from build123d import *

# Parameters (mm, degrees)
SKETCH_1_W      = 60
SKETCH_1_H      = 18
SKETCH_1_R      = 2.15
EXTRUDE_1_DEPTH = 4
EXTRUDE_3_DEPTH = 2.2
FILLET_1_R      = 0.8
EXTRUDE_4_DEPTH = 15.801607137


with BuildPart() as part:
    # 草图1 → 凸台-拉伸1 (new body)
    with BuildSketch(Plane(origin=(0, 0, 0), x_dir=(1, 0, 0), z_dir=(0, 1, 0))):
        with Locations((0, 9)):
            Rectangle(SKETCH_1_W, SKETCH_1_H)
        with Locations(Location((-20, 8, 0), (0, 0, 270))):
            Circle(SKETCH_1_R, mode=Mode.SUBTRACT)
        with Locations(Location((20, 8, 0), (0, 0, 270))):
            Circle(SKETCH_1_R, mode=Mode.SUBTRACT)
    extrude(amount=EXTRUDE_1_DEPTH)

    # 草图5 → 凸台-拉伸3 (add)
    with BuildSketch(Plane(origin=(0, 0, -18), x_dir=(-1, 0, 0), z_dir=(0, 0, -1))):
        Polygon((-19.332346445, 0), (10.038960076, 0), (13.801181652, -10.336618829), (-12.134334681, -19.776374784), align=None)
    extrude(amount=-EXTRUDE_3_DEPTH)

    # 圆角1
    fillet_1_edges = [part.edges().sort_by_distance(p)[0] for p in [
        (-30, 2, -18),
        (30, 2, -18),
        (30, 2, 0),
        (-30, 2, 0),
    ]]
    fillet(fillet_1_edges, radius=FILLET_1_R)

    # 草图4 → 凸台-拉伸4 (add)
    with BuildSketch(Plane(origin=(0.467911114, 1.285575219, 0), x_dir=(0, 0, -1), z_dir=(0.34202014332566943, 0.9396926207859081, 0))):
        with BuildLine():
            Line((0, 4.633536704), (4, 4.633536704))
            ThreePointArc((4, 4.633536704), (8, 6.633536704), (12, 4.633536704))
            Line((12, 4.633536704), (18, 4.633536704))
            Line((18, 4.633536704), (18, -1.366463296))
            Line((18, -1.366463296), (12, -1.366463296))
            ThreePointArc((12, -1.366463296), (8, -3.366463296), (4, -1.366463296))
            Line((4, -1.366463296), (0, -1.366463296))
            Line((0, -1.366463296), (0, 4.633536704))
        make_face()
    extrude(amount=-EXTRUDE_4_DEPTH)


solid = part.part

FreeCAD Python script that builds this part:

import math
import FreeCAD as App
import Part
import Sketcher
Q = App.Units.Quantity


def edges_at(feature, points):
    """Names of the edges that pass closest to the given points."""
    edges = feature.Shape.Edges
    near = lambda p: min(range(len(edges)), key=lambda i: edges[i].distToShape(Part.Vertex(*p))[0])
    return sorted({f"Edge{near(p) + 1}" for p in points})


def add_polygon(sketch, points):
    """Adds a closed chain of lines whose ends are joined by coincident constraints."""
    first, n = sketch.GeometryCount, len(points)
    for a, b in zip(points, points[1:] + points[:1]):
        sketch.addGeometry(Part.LineSegment(App.Vector(*a, 0), App.Vector(*b, 0)), False)
    for i in range(n):
        sketch.addConstraint(Sketcher.Constraint("Coincident", first + i, 2, first + (i + 1) % n, 1))

doc = App.newDocument("Part")
body = doc.addObject("PartDesign::Body", "Body")

# Sketch on XZ plane
sketch1 = body.newObject("Sketcher::SketchObject", "Sketch")
sketch1.AttachmentSupport = (doc.getObject("XZ_Plane"), [""])
sketch1.MapMode = "FlatFace"
add_polygon(sketch1, [(-30, -18), (-30, 0), (30, 0), (30, -18)])  # lines 0-3
sketch1.addGeometry(Part.Circle(App.Vector(-20, -8, 0), App.Vector(0, 0, 1), 2.1), False)  # 4
sketch1.addGeometry(Part.Circle(App.Vector(20, -8, 0), App.Vector(0, 0, 1), 2.1), False)  # 5
sketch1.addConstraint(Sketcher.Constraint("Vertical", 0))
sketch1.addConstraint(Sketcher.Constraint("Horizontal", 1))
sketch1.addConstraint(Sketcher.Constraint("Vertical", 2))
sketch1.addConstraint(Sketcher.Constraint("Horizontal", 3))
sketch1.addConstraint(Sketcher.Constraint("Equal", 4, 5))
sketch1.addConstraint(Sketcher.Constraint("Symmetric", 0, 2, 1, 2, -1, 1))
sketch1.addConstraint(Sketcher.Constraint("Symmetric", 4, 3, 5, 3, -2))
sketch1.addConstraint(Sketcher.Constraint("Diameter", 4, 4.3))
sketch1.addConstraint(Sketcher.Constraint("DistanceX", 1, 1, 1, 2, 60.0))
sketch1.addConstraint(Sketcher.Constraint("DistanceY", 0, 1, 0, 2, 18.0))
sketch1.addConstraint(Sketcher.Constraint("DistanceX", 4, 3, -1, 1, 20.0))
sketch1.addConstraint(Sketcher.Constraint("DistanceY", 4, 3, -1, 1, 8.0))
pad1 = body.newObject("PartDesign::Pad", "Pad")
pad1.Profile = sketch1
pad1.Length = 4
pad1.Reversed = True

# Sketch on XY plane
sketch2 = body.newObject("Sketcher::SketchObject", "Sketch001")
sketch2.AttachmentSupport = (doc.getObject("XY_Plane"), [""])
sketch2.MapMode = "FlatFace"
sketch2.AttachmentOffset = App.Placement(App.Vector(0, 0, -18), App.Rotation())
add_polygon(sketch2, [(-10, 0), (19, 0), (12, -20), (-14, -10)])  # lines 0-3
sketch2.addConstraint(Sketcher.Constraint("Horizontal", 0))
sketch2.addConstraint(Sketcher.Constraint("PointOnObject", 0, 2, -1))
sketch2.addConstraint(Sketcher.Constraint("Perpendicular", 1, 2))
sketch2.addConstraint(Sketcher.Constraint("Perpendicular", 2, 3))
sketch2.addConstraint(Sketcher.Constraint("Angle", 1, Q("-110 deg")))
sketch2.addConstraint(Sketcher.Constraint("Distance", 3, 11.0))
sketch2.addConstraint(Sketcher.Constraint("Distance", 2, 27.6))
sketch2.addConstraint(Sketcher.Constraint("DistanceX", 2, 2, -1, 1, 13.801182))
pad2 = body.newObject("PartDesign::Pad", "Pad001")
pad2.Profile = sketch2
pad2.Length = 2.2
doc.recompute()

fillet = body.newObject("PartDesign::Fillet", "Fillet")
fillet.Base = (pad2, edges_at(pad2, [
    (-30, 2, -18),
    (30, 2, -18),
    (30, 2, 0),
    (-30, 2, 0),
]))
fillet.Radius = 0.8

# Sketch on an angled plane
sketch3 = body.newObject("Sketcher::SketchObject", "Sketch002")
sketch3.Placement = App.Placement(App.Vector(0.467911, 1.285575, 0), App.Rotation(App.Vector(0, 0, -1), App.Vector(-0.939692621, 0.342020143, 0), App.Vector(0.342020143, 0.939692621, 0), "ZXY"))
sketch3.addGeometry(Part.LineSegment(App.Vector(4, 4.6, 0), App.Vector(0, 4.6, 0)), False)
sketch3.addGeometry(Part.LineSegment(App.Vector(0, 4.6, 0), App.Vector(0, -1.4, 0)), False)
sketch3.addGeometry(Part.LineSegment(App.Vector(0, -1.4, 0), App.Vector(4, -1.4, 0)), False)
sketch3.addGeometry(Part.ArcOfCircle(Part.Circle(App.Vector(8, 1.6, 0), App.Vector(0, 0, 1), 5), math.radians(-143), math.radians(-37)), False)
sketch3.addGeometry(Part.LineSegment(App.Vector(12, -1.4, 0), App.Vector(18, -1.4, 0)), False)
sketch3.addGeometry(Part.LineSegment(App.Vector(18, -1.4, 0), App.Vector(18, 4.6, 0)), False)
sketch3.addGeometry(Part.LineSegment(App.Vector(18, 4.6, 0), App.Vector(12, 4.6, 0)), False)
sketch3.addGeometry(Part.ArcOfCircle(Part.Circle(App.Vector(8, 1.6, 0), App.Vector(0, 0, 1), 5), math.radians(37), math.radians(143)), False)
sketch3.addConstraint(Sketcher.Constraint("Coincident", 0, 2, 1, 1))
sketch3.addConstraint(Sketcher.Constraint("Coincident", 1, 2, 2, 1))
sketch3.addConstraint(Sketcher.Constraint("Coincident", 2, 2, 3, 1))
sketch3.addConstraint(Sketcher.Constraint("Coincident", 3, 2, 4, 1))
sketch3.addConstraint(Sketcher.Constraint("Coincident", 4, 2, 5, 1))
sketch3.addConstraint(Sketcher.Constraint("Coincident", 5, 2, 6, 1))
sketch3.addConstraint(Sketcher.Constraint("Coincident", 6, 2, 7, 1))
sketch3.addConstraint(Sketcher.Constraint("Coincident", 7, 2, 0, 1))
sketch3.addConstraint(Sketcher.Constraint("Horizontal", 0))
sketch3.addConstraint(Sketcher.Constraint("Vertical", 1))
sketch3.addConstraint(Sketcher.Constraint("Horizontal", 2))
sketch3.addConstraint(Sketcher.Constraint("Horizontal", 4))
sketch3.addConstraint(Sketcher.Constraint("Vertical", 5))
sketch3.addConstraint(Sketcher.Constraint("Horizontal", 6))
sketch3.addConstraint(Sketcher.Constraint("Coincident", 7, 3, 3, 3))
sketch3.addConstraint(Sketcher.Constraint("Equal", 3, 7))
sketch3.addConstraint(Sketcher.Constraint("PointOnObject", 0, 2, -2))
sketch3.addConstraint(Sketcher.Constraint("Horizontal", 2, 2, 3, 2))
sketch3.addConstraint(Sketcher.Constraint("Horizontal", 0, 2, 5, 2))
sketch3.addConstraint(Sketcher.Constraint("Vertical", 3, 2, 6, 2))
sketch3.addConstraint(Sketcher.Constraint("Equal", 6, 1))
sketch3.addConstraint(Sketcher.Constraint("Radius", 3, 5.0))
sketch3.addConstraint(Sketcher.Constraint("DistanceX", 0, 2, 0, 1, 4.0))
sketch3.addConstraint(Sketcher.Constraint("DistanceX", 4, 1, 4, 2, 6.0))
sketch3.addConstraint(Sketcher.Constraint("DistanceY", -1, 1, 3, 3, 1.633537))
pad3 = body.newObject("PartDesign::Pad", "Pad002")
pad3.Profile = sketch3
pad3.Length = 15.801607
pad3.Reversed = True

doc.recompute()
